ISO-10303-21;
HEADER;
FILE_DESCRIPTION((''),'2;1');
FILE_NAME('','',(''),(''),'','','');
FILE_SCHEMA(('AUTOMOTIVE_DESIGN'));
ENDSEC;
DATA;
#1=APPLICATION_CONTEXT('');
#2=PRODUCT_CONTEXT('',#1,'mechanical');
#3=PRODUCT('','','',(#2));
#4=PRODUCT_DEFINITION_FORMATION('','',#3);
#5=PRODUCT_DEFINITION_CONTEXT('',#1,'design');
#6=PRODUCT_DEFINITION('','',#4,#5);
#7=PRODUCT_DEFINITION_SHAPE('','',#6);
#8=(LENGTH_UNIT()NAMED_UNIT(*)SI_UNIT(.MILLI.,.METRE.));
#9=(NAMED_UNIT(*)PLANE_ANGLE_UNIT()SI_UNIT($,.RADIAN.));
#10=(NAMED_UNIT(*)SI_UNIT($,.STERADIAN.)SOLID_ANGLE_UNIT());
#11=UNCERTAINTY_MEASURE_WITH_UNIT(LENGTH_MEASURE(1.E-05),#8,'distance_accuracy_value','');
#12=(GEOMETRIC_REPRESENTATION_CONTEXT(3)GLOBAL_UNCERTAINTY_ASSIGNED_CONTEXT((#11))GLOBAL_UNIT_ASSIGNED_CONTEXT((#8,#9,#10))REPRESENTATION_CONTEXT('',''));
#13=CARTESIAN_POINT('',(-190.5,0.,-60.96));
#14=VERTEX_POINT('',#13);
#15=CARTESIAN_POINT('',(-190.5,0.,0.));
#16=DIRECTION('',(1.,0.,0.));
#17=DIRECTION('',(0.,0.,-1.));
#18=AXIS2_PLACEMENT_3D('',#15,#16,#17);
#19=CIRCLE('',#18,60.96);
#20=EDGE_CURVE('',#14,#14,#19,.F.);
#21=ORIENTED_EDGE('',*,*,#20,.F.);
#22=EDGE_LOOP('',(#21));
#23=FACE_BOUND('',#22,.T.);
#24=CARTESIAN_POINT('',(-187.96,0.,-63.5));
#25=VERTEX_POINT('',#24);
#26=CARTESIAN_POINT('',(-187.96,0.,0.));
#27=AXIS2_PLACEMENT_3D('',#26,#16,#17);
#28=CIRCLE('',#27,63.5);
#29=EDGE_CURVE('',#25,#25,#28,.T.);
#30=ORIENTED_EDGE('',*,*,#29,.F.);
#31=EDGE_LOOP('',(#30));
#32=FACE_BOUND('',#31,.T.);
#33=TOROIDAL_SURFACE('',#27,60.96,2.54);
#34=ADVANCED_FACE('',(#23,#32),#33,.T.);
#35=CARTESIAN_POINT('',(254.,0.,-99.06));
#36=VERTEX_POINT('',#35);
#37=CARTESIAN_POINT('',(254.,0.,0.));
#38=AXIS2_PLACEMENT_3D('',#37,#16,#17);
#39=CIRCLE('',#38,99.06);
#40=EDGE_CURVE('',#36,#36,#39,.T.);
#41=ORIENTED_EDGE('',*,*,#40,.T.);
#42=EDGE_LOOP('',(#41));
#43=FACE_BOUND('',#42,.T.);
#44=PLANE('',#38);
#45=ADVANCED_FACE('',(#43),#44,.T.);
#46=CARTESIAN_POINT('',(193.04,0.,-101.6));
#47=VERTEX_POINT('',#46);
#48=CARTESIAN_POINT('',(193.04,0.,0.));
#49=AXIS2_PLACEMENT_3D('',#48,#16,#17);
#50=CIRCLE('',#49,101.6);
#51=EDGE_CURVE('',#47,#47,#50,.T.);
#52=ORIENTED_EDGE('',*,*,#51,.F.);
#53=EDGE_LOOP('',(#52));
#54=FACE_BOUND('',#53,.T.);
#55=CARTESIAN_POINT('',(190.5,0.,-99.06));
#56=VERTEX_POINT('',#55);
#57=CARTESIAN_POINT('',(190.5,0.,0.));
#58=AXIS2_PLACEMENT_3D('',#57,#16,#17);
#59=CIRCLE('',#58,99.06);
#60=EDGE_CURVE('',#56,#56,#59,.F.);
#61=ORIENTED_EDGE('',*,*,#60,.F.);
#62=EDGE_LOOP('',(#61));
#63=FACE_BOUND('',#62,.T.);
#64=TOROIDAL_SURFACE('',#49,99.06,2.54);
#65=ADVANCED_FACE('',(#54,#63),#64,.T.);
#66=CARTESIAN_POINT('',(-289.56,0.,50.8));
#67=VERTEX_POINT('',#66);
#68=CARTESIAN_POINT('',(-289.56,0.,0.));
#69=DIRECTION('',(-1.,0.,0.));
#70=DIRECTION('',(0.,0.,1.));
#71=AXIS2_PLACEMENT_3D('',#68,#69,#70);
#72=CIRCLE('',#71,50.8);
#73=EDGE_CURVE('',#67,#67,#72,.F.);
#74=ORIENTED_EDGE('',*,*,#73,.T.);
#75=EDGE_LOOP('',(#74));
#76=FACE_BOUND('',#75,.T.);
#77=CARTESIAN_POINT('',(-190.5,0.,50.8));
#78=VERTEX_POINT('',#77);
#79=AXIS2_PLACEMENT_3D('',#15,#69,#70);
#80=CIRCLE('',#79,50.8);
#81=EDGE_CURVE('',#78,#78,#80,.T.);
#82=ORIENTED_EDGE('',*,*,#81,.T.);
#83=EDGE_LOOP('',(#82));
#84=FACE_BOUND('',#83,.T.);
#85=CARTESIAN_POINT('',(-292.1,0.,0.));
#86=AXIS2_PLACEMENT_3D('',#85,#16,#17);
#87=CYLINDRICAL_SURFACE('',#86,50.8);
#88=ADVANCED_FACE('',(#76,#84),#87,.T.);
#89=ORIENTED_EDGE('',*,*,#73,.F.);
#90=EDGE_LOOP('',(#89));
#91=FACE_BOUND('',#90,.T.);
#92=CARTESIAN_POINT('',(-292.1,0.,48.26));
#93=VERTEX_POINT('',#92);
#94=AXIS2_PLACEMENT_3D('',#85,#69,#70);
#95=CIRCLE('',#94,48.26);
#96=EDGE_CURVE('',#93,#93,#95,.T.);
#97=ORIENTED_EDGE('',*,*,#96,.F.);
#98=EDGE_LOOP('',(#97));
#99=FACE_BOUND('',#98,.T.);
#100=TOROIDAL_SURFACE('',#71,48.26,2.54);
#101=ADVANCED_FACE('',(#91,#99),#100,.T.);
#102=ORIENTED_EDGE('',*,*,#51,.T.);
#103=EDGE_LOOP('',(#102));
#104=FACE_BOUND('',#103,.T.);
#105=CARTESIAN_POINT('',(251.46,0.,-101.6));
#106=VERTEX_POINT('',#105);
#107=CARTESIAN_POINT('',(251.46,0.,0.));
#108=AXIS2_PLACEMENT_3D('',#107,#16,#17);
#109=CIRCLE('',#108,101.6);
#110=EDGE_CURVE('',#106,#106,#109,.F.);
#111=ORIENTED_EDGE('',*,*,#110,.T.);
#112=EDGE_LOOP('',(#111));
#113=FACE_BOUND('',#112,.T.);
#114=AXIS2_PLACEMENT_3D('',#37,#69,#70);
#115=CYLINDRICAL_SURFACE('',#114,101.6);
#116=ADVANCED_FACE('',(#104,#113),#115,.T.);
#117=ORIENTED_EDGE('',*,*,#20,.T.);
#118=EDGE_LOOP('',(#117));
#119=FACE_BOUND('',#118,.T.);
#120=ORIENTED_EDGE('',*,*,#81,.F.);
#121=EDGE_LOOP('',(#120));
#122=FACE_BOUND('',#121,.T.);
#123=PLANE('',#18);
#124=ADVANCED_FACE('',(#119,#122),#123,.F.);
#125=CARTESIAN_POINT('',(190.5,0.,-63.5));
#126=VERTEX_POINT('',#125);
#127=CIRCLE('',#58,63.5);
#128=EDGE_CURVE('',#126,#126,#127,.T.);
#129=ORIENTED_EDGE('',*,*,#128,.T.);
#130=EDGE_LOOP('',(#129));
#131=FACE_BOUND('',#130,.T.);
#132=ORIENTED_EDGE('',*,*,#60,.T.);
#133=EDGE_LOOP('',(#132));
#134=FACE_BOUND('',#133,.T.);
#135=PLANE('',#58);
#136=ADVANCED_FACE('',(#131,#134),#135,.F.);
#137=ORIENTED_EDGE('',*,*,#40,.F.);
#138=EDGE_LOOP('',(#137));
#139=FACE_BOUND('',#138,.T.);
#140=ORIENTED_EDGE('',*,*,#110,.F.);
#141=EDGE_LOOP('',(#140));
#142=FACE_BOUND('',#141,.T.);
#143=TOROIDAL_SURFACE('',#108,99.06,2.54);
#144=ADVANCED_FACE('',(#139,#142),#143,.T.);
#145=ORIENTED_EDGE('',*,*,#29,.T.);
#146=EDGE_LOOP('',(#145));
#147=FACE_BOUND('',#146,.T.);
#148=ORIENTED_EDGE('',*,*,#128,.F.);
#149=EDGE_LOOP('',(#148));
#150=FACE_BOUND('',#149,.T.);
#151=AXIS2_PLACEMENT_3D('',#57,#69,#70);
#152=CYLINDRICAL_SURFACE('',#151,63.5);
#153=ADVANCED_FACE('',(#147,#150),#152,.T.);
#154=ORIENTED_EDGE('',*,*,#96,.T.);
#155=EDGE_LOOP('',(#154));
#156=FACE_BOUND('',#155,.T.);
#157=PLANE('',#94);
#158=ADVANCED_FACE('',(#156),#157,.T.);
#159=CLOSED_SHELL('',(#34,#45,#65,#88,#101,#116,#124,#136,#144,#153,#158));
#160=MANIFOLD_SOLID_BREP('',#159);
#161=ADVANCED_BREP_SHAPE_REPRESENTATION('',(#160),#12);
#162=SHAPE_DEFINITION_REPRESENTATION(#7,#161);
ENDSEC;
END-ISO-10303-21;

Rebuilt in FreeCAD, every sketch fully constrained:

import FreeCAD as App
import Part
import Sketcher

V = App.Vector
Q = App.Units.Quantity


def edges_at(feature, points):
    """Names of the edges that pass closest to the given points."""
    edges = feature.Shape.Edges
    near = lambda p: min(range(len(edges)), key=lambda i: edges[i].distToShape(Part.Vertex(*p))[0])
    return sorted({f"Edge{near(p) + 1}" for p in points})

doc = App.newDocument("Part")
body = doc.addObject("PartDesign::Body", "Body")

sketch1 = body.newObject("Sketcher::SketchObject", "Sketch")
sketch1.AttachmentSupport = (doc.getObject("YZ_Plane"), [""])
sketch1.MapMode = "FlatFace"
sketch1.addGeometry(Part.Circle(V(0, 0, 0), V(0, 0, 1), 63.5), False)
sketch1.addConstraint([
    Sketcher.Constraint("Coincident", 0, 3, -1, 1),
    Sketcher.Constraint("Diameter", 0, Q("5 in")),
])
pad1 = body.newObject("PartDesign::Pad", "Pad")
pad1.Profile = sketch1
pad1.Length = Q("15 in")
pad1.Midplane = True

sketch2 = body.newObject("Sketcher::SketchObject", "Sketch001")
sketch2.AttachmentSupport = (doc.getObject("YZ_Plane"), [""])
sketch2.MapMode = "FlatFace"
sketch2.AttachmentOffset = App.Placement(V(0, 0, -7.5 * 25.4), App.Rotation())
sketch2.addGeometry(Part.Circle(V(0, 0, 0), V(0, 0, 1), 50.8), False)
sketch2.addConstraint([
    Sketcher.Constraint("Coincident", 0, 3, -1, 1),
    Sketcher.Constraint("Diameter", 0, Q("4 in")),
])
pad2 = body.newObject("PartDesign::Pad", "Pad001")
pad2.Profile = sketch2
pad2.Length = Q("4 in")
pad2.Reversed = True

sketch3 = body.newObject("Sketcher::SketchObject", "Sketch002")
sketch3.AttachmentSupport = (doc.getObject("YZ_Plane"), [""])
sketch3.MapMode = "FlatFace"
sketch3.AttachmentOffset = App.Placement(V(0, 0, 7.5 * 25.4), App.Rotation())
sketch3.addGeometry(Part.Circle(V(0, 0, 0), V(0, 0, 1), 101.6), False)
sketch3.addConstraint([
    Sketcher.Constraint("Coincident", 0, 3, -1, 1),
    Sketcher.Constraint("Diameter", 0, Q("8 in")),
])
pad3 = body.newObject("PartDesign::Pad", "Pad002")
pad3.Profile = sketch3
pad3.Length = Q("2.5 in")
doc.recompute()

fillet = body.newObject("PartDesign::Fillet", "Fillet")
fillet.Base = (pad3, edges_at(pad3, [(254, 0, 101.6), (190.5, 0, 101.6)]))
fillet.Radius = Q("0.1 in")
doc.recompute()

fillet2 = body.newObject("PartDesign::Fillet", "Fillet001")
fillet2.Base = (fillet, edges_at(fillet, [(-190.5, 0, 63.5), (-292.1, 0, -50.8)]))
fillet2.Radius = Q("0.1 in")

doc.recompute()
